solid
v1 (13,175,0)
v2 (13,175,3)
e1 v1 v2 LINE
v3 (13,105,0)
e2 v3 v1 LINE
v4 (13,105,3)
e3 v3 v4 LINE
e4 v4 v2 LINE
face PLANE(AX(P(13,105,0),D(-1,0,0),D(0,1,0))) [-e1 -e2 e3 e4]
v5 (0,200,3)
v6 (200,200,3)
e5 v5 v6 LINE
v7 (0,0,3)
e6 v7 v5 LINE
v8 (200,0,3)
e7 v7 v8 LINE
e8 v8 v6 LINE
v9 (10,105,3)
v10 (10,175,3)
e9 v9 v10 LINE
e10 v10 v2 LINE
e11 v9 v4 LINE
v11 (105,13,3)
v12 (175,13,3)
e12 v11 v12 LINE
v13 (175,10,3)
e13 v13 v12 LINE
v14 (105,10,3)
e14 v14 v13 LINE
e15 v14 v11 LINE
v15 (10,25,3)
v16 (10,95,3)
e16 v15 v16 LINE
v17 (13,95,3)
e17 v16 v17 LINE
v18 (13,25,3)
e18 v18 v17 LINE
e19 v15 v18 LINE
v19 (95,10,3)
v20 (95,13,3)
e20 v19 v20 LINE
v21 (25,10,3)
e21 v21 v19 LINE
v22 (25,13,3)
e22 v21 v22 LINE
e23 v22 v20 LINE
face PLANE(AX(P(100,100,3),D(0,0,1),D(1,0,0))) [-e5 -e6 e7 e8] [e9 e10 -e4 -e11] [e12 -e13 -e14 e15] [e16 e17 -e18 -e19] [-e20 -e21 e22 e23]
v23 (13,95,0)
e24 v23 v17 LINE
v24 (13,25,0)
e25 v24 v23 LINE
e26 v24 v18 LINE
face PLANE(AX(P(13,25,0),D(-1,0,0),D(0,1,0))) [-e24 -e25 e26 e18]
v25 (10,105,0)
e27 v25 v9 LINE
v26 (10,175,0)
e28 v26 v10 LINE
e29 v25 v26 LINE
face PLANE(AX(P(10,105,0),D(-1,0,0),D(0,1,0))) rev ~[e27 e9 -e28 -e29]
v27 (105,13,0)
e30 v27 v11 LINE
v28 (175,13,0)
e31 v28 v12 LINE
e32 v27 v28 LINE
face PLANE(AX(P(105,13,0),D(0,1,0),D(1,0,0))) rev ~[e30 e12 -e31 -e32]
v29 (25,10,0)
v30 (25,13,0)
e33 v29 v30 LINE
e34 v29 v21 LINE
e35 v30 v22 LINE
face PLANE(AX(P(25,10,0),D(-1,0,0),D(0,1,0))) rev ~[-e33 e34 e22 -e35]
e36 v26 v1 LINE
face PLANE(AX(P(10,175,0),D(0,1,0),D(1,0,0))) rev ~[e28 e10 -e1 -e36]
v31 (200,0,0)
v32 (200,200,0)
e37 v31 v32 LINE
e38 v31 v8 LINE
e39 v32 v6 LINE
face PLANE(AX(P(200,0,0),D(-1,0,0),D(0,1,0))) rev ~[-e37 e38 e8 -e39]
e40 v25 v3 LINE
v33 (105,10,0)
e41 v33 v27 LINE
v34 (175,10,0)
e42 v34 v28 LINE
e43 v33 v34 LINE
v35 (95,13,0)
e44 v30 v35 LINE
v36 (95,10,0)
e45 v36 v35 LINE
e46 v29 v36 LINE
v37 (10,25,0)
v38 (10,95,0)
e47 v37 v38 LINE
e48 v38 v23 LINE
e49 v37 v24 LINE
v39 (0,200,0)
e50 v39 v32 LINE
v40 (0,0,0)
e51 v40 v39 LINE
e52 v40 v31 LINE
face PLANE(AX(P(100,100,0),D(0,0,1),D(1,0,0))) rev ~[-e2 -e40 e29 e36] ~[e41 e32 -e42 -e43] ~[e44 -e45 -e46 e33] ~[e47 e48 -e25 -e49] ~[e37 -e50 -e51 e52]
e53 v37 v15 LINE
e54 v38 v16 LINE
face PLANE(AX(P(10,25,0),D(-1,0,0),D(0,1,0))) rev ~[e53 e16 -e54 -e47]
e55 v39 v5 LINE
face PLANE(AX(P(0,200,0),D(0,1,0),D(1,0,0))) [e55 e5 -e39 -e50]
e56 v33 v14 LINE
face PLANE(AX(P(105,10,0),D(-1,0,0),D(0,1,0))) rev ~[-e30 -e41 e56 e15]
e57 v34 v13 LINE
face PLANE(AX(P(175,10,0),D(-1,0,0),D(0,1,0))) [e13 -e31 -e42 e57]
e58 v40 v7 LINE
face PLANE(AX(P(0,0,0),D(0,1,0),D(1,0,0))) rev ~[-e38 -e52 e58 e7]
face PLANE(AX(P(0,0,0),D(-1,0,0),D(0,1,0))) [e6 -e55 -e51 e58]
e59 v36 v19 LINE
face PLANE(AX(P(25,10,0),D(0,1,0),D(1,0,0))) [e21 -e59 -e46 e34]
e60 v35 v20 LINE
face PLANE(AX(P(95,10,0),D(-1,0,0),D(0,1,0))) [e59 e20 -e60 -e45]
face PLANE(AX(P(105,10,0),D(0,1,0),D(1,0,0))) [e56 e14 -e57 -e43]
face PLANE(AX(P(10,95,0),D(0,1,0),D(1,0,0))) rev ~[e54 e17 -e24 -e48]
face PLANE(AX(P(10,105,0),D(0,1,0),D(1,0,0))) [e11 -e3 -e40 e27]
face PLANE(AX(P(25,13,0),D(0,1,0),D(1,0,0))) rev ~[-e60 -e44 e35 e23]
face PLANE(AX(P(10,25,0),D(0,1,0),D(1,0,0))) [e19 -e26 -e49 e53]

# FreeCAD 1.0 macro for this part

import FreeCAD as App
import Part
import Sketcher

doc = App.newDocument("Part")
body = doc.addObject("PartDesign::Body", "Body")

# Sketch on XY plane
sketch1 = body.newObject("Sketcher::SketchObject", "Sketch")
sketch1.AttachmentSupport = (doc.getObject("XY_Plane"), [""])
sketch1.MapMode = "FlatFace"
sketch1.addGeometry(Part.LineSegment(App.Vector(0, 200, 0), App.Vector(0, 0, 0)), False)
sketch1.addGeometry(Part.LineSegment(App.Vector(0, 0, 0), App.Vector(200, 0, 0)), False)
sketch1.addGeometry(Part.LineSegment(App.Vector(200, 0, 0), App.Vector(200, 200, 0)), False)
sketch1.addGeometry(Part.LineSegment(App.Vector(200, 200, 0), App.Vector(0, 200, 0)), False)
sketch1.addGeometry(Part.LineSegment(App.Vector(95, 10, 0), App.Vector(25, 10, 0)), False)
sketch1.addGeometry(Part.LineSegment(App.Vector(25, 10, 0), App.Vector(25, 13, 0)), False)
sketch1.addGeometry(Part.LineSegment(App.Vector(25, 13, 0), App.Vector(95, 13, 0)), False)
sketch1.addGeometry(Part.LineSegment(App.Vector(95, 13, 0), App.Vector(95, 10, 0)), False)
sketch1.addGeometry(Part.LineSegment(App.Vector(13, 25, 0), App.Vector(10, 25, 0)), False)
sketch1.addGeometry(Part.LineSegment(App.Vector(10, 25, 0), App.Vector(10, 95, 0)), False)
sketch1.addGeometry(Part.LineSegment(App.Vector(10, 95, 0), App.Vector(13, 95, 0)), False)
sketch1.addGeometry(Part.LineSegment(App.Vector(13, 95, 0), App.Vector(13, 25, 0)), False)
sketch1.addGeometry(Part.LineSegment(App.Vector(175, 10, 0), App.Vector(105, 10, 0)), False)
sketch1.addGeometry(Part.LineSegment(App.Vector(105, 10, 0), App.Vector(105, 13, 0)), False)
sketch1.addGeometry(Part.LineSegment(App.Vector(105, 13, 0), App.Vector(175, 13, 0)), False)
sketch1.addGeometry(Part.LineSegment(App.Vector(175, 13, 0), App.Vector(175, 10, 0)), False)
sketch1.addGeometry(Part.LineSegment(App.Vector(13, 105, 0), App.Vector(10, 105, 0)), False)
sketch1.addGeometry(Part.LineSegment(App.Vector(10, 105, 0), App.Vector(10, 175, 0)), False)
sketch1.addGeometry(Part.LineSegment(App.Vector(10, 175, 0), App.Vector(13, 175, 0)), False)
sketch1.addGeometry(Part.LineSegment(App.Vector(13, 175, 0), App.Vector(13, 105, 0)), False)
sketch1.addConstraint(Sketcher.Constraint("Coincident", 0, 2, 1, 1))
sketch1.addConstraint(Sketcher.Constraint("Coincident", 1, 2, 2, 1))
sketch1.addConstraint(Sketcher.Constraint("Coincident", 2, 2, 3, 1))
sketch1.addConstraint(Sketcher.Constraint("Coincident", 3, 2, 0, 1))
sketch1.addConstraint(Sketcher.Constraint("Coincident", 4, 2, 5, 1))
sketch1.addConstraint(Sketcher.Constraint("Coincident", 5, 2, 6, 1))
sketch1.addConstraint(Sketcher.Constraint("Coincident", 6, 2, 7, 1))
sketch1.addConstraint(Sketcher.Constraint("Coincident", 7, 2, 4, 1))
sketch1.addConstraint(Sketcher.Constraint("Coincident", 8, 2, 9, 1))
sketch1.addConstraint(Sketcher.Constraint("Coincident", 9, 2, 10, 1))
sketch1.addConstraint(Sketcher.Constraint("Coincident", 10, 2, 11, 1))
sketch1.addConstraint(Sketcher.Constraint("Coincident", 11, 2, 8, 1))
sketch1.addConstraint(Sketcher.Constraint("Coincident", 12, 2, 13, 1))
sketch1.addConstraint(Sketcher.Constraint("Coincident", 13, 2, 14, 1))
sketch1.addConstraint(Sketcher.Constraint("Coincident", 14, 2, 15, 1))
sketch1.addConstraint(Sketcher.Constraint("Coincident", 15, 2, 12, 1))
sketch1.addConstraint(Sketcher.Constraint("Coincident", 16, 2, 17, 1))
sketch1.addConstraint(Sketcher.Constraint("Coincident", 17, 2, 18, 1))
sketch1.addConstraint(Sketcher.Constraint("Coincident", 18, 2, 19, 1))
sketch1.addConstraint(Sketcher.Constraint("Coincident", 19, 2, 16, 1))
sketch1.addConstraint(Sketcher.Constraint("Vertical", 0))
sketch1.addConstraint(Sketcher.Constraint("Horizontal", 1))
sketch1.addConstraint(Sketcher.Constraint("Vertical", 2))
sketch1.addConstraint(Sketcher.Constraint("Horizontal", 3))
sketch1.addConstraint(Sketcher.Constraint("Horizontal", 4))
sketch1.addConstraint(Sketcher.Constraint("Vertical", 5))
sketch1.addConstraint(Sketcher.Constraint("Horizontal", 6))
sketch1.addConstraint(Sketcher.Constraint("Vertical", 7))
sketch1.addConstraint(Sketcher.Constraint("Horizontal", 8))
sketch1.addConstraint(Sketcher.Constraint("Vertical", 9))
sketch1.addConstraint(Sketcher.Constraint("Horizontal", 10))
sketch1.addConstraint(Sketcher.Constraint("Vertical", 11))
sketch1.addConstraint(Sketcher.Constraint("Horizontal", 12))
sketch1.addConstraint(Sketcher.Constraint("Vertical", 13))
sketch1.addConstraint(Sketcher.Constraint("Horizontal", 14))
sketch1.addConstraint(Sketcher.Constraint("Vertical", 15))
sketch1.addConstraint(Sketcher.Constraint("Horizontal", 16))
sketch1.addConstraint(Sketcher.Constraint("Vertical", 17))
sketch1.addConstraint(Sketcher.Constraint("Horizontal", 18))
sketch1.addConstraint(Sketcher.Constraint("Vertical", 19))
sketch1.addConstraint(Sketcher.Constraint("Coincident", 0, 2, -1, 1))
sketch1.addConstraint(Sketcher.Constraint("Horizontal", 7, 2, 12, 2))
sketch1.addConstraint(Sketcher.Constraint("Horizontal", 6, 2, 13, 2))
sketch1.addConstraint(Sketcher.Constraint("Vertical", 9, 2, 16, 2))
sketch1.addConstraint(Sketcher.Constraint("Vertical", 11, 2, 18, 2))
sketch1.addConstraint(Sketcher.Constraint("Equal", 6, 12))
sketch1.addConstraint(Sketcher.Constraint("Equal", 3, 0))
sketch1.addConstraint(Sketcher.Constraint("Equal", 18, 5))
sketch1.addConstraint(Sketcher.Constraint("Equal", 14, 9))
sketch1.addConstraint(Sketcher.Constraint("Equal", 11, 17))
sketch1.addConstraint(Sketcher.Constraint("DistanceX", 1, 1, 1, 2, 200.0))
sketch1.addConstraint(Sketcher.Constraint("DistanceX", 4, 2, 4, 1, 70.0))
sketch1.addConstraint(Sketcher.Constraint("DistanceX", 8, 2, 8, 1, 3.0))
sketch1.addConstraint(Sketcher.Constraint("DistanceX", -1, 1, 4, 2, 25.0))
sketch1.addConstraint(Sketcher.Constraint("DistanceY", -1, 1, 4, 2, 10.0))
sketch1.addConstraint(Sketcher.Constraint("DistanceX", -1, 1, 8, 2, 10.0))
sketch1.addConstraint(Sketcher.Constraint("DistanceY", -1, 1, 8, 2, 25.0))
sketch1.addConstraint(Sketcher.Constraint("DistanceX", -1, 1, 12, 2, 105.0))
sketch1.addConstraint(Sketcher.Constraint("DistanceY", -1, 1, 16, 2, 105.0))
pad1 = body.newObject("PartDesign::Pad", "Pad")
pad1.Profile = sketch1
pad1.Length = 3

doc.recompute()
